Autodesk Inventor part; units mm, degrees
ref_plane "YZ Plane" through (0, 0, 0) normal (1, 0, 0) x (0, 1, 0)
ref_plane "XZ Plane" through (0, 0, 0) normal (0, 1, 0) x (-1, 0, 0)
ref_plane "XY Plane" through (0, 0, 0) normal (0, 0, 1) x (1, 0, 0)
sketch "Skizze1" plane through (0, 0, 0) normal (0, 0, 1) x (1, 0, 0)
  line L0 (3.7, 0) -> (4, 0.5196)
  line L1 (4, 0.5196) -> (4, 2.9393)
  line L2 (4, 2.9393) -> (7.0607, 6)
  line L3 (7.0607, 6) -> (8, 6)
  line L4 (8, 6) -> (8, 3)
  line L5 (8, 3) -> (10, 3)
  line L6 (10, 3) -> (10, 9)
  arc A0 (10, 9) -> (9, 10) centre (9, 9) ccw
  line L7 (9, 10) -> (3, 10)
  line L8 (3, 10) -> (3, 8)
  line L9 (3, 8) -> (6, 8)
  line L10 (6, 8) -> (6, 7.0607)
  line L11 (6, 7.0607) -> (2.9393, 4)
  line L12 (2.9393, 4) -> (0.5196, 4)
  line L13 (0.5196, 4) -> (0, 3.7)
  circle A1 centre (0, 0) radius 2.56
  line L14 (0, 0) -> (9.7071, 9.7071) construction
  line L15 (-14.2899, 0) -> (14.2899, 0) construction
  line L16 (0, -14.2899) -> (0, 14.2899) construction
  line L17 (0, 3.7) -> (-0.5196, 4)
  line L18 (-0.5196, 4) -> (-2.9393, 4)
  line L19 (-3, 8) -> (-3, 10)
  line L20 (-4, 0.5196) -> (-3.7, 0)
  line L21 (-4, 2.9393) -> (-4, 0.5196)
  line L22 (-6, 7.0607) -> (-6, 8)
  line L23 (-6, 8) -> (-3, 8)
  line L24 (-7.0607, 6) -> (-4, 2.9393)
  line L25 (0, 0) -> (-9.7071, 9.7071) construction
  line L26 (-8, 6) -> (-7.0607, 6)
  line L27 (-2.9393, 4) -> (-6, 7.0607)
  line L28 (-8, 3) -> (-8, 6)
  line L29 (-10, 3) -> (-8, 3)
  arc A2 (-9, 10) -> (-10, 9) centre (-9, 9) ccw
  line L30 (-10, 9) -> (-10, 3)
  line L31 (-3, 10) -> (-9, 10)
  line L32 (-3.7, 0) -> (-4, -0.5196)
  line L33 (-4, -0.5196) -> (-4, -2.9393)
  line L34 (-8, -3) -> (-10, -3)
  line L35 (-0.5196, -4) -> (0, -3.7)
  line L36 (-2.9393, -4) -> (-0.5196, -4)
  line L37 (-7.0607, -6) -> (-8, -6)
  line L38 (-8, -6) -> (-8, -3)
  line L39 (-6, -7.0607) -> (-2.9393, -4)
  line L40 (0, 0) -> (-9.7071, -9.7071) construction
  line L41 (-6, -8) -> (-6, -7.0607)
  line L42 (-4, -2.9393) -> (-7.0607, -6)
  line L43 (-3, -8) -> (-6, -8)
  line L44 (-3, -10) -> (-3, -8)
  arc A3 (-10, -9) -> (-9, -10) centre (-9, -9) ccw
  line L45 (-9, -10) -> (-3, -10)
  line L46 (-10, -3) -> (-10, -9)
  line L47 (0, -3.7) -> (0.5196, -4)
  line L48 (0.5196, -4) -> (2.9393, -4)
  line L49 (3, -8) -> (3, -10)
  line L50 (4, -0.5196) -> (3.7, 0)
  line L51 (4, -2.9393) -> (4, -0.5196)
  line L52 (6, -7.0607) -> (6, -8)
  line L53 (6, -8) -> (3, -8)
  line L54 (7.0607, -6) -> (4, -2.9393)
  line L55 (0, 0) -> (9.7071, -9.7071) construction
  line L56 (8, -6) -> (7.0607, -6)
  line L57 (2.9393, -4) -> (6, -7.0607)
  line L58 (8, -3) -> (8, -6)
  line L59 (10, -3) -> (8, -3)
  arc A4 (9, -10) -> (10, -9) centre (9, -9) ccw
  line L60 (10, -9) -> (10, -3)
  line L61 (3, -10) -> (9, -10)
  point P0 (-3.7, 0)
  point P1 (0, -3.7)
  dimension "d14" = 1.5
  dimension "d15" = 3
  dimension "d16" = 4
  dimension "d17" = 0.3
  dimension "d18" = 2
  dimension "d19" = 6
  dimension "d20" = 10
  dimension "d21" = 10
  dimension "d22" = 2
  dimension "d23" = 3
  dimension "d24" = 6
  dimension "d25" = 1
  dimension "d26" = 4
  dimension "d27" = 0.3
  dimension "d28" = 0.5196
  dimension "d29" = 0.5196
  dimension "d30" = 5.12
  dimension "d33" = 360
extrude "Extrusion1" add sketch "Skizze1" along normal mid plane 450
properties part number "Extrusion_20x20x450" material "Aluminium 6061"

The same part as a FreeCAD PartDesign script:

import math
import FreeCAD as App
import Part
import Sketcher
from FreeCAD import Vector
Q = App.Units.Quantity

doc = App.newDocument("Part")
body = doc.addObject("PartDesign::Body", "Body")

# Sketch on XY plane
sketch1 = body.newObject("Sketcher::SketchObject", "Sketch")
sketch1.AttachmentSupport = (doc.getObject("XY_Plane"), [""])
sketch1.MapMode = "FlatFace"
sketch1.addGeometry([
    Part.LineSegment(Vector(4, -0.5, 0), Vector(3.7, 0, 0)),  # 0
    Part.LineSegment(Vector(3.7, 0, 0), Vector(4, 0.5, 0)),  # 1
    Part.LineSegment(Vector(4, 0.5, 0), Vector(4, 2.9, 0)),  # 2
    Part.LineSegment(Vector(4, 2.9, 0), Vector(7.1, 6, 0)),  # 3
    Part.LineSegment(Vector(7.1, 6, 0), Vector(8, 6, 0)),  # 4
    Part.LineSegment(Vector(8, 6, 0), Vector(8, 3, 0)),  # 5
    Part.LineSegment(Vector(8, 3, 0), Vector(10, 3, 0)),  # 6
    Part.LineSegment(Vector(10, 3, 0), Vector(10, 9, 0)),  # 7
    Part.ArcOfCircle(Part.Circle(Vector(9, 9, 0), Vector(0, 0, 1), 1), math.radians(0), math.radians(90)),  # 8
    Part.LineSegment(Vector(9, 10, 0), Vector(3, 10, 0)),  # 9
    Part.LineSegment(Vector(3, 10, 0), Vector(3, 8, 0)),  # 10
    Part.LineSegment(Vector(3, 8, 0), Vector(6, 8, 0)),  # 11
    Part.LineSegment(Vector(6, 8, 0), Vector(6, 7.1, 0)),  # 12
    Part.LineSegment(Vector(6, 7.1, 0), Vector(2.9, 4, 0)),  # 13
    Part.LineSegment(Vector(2.9, 4, 0), Vector(0.5, 4, 0)),  # 14
    Part.LineSegment(Vector(0.5, 4, 0), Vector(0, 3.7, 0)),  # 15
    Part.LineSegment(Vector(0, 3.7, 0), Vector(-0.5, 4, 0)),  # 16
    Part.LineSegment(Vector(-0.5, 4, 0), Vector(-2.9, 4, 0)),  # 17
    Part.LineSegment(Vector(-2.9, 4, 0), Vector(-6, 7.1, 0)),  # 18
    Part.LineSegment(Vector(-6, 7.1, 0), Vector(-6, 8, 0)),  # 19
    Part.LineSegment(Vector(-6, 8, 0), Vector(-3, 8, 0)),  # 20
    Part.LineSegment(Vector(-3, 8, 0), Vector(-3, 10, 0)),  # 21
    Part.LineSegment(Vector(-3, 10, 0), Vector(-9, 10, 0)),  # 22
    Part.ArcOfCircle(Part.Circle(Vector(-9, 9, 0), Vector(0, 0, 1), 1), math.radians(90), math.radians(180)),  # 23
    Part.LineSegment(Vector(-10, 9, 0), Vector(-10, 3, 0)),  # 24
    Part.LineSegment(Vector(-10, 3, 0), Vector(-8, 3, 0)),  # 25
    Part.LineSegment(Vector(-8, 3, 0), Vector(-8, 6, 0)),  # 26
    Part.LineSegment(Vector(-8, 6, 0), Vector(-7.1, 6, 0)),  # 27
    Part.LineSegment(Vector(-7.1, 6, 0), Vector(-4, 2.9, 0)),  # 28
    Part.LineSegment(Vector(-4, 2.9, 0), Vector(-4, 0.5, 0)),  # 29
    Part.LineSegment(Vector(-4, 0.5, 0), Vector(-3.7, 0, 0)),  # 30
    Part.LineSegment(Vector(-3.7, 0, 0), Vector(-4, -0.5, 0)),  # 31
    Part.LineSegment(Vector(-4, -0.5, 0), Vector(-4, -2.9, 0)),  # 32
    Part.LineSegment(Vector(-4, -2.9, 0), Vector(-7.1, -6, 0)),  # 33
    Part.LineSegment(Vector(-7.1, -6, 0), Vector(-8, -6, 0)),  # 34
    Part.LineSegment(Vector(-8, -6, 0), Vector(-8, -3, 0)),  # 35
    Part.LineSegment(Vector(-8, -3, 0), Vector(-10, -3, 0)),  # 36
    Part.LineSegment(Vector(-10, -3, 0), Vector(-10, -9, 0)),  # 37
    Part.ArcOfCircle(Part.Circle(Vector(-9, -9, 0), Vector(0, 0, 1), 1), math.radians(180), math.radians(270)),  # 38
    Part.LineSegment(Vector(-9, -10, 0), Vector(-3, -10, 0)),  # 39
    Part.LineSegment(Vector(-3, -10, 0), Vector(-3, -8, 0)),  # 40
    Part.LineSegment(Vector(-3, -8, 0), Vector(-6, -8, 0)),  # 41
    Part.LineSegment(Vector(-6, -8, 0), Vector(-6, -7.1, 0)),  # 42
    Part.LineSegment(Vector(-6, -7.1, 0), Vector(-2.9, -4, 0)),  # 43
    Part.LineSegment(Vector(-2.9, -4, 0), Vector(-0.5, -4, 0)),  # 44
    Part.LineSegment(Vector(-0.5, -4, 0), Vector(0, -3.7, 0)),  # 45
    Part.LineSegment(Vector(0, -3.7, 0), Vector(0.5, -4, 0)),  # 46
    Part.LineSegment(Vector(0.5, -4, 0), Vector(2.9, -4, 0)),  # 47
    Part.LineSegment(Vector(2.9, -4, 0), Vector(6, -7.1, 0)),  # 48
    Part.LineSegment(Vector(6, -7.1, 0), Vector(6, -8, 0)),  # 49
    Part.LineSegment(Vector(6, -8, 0), Vector(3, -8, 0)),  # 50
    Part.LineSegment(Vector(3, -8, 0), Vector(3, -10, 0)),  # 51
    Part.LineSegment(Vector(3, -10, 0), Vector(9, -10, 0)),  # 52
    Part.ArcOfCircle(Part.Circle(Vector(9, -9, 0), Vector(0, 0, 1), 1), math.radians(-90), math.radians(0)),  # 53
    Part.LineSegment(Vector(10, -9, 0), Vector(10, -3, 0)),  # 54
    Part.LineSegment(Vector(10, -3, 0), Vector(8, -3, 0)),  # 55
    Part.LineSegment(Vector(8, -3, 0), Vector(8, -6, 0)),  # 56
    Part.LineSegment(Vector(8, -6, 0), Vector(7.1, -6, 0)),  # 57
    Part.LineSegment(Vector(7.1, -6, 0), Vector(4, -2.9, 0)),  # 58
    Part.LineSegment(Vector(4, -2.9, 0), Vector(4, -0.5, 0)),  # 59
    Part.Circle(Vector(0, 0, 0), Vector(0, 0, 1), 2.6),  # 60
], False)
sketch1.addConstraint([
    Sketcher.Constraint("Coincident", 0, 2, 1, 1),
    Sketcher.Constraint("Coincident", 1, 2, 2, 1),
    Sketcher.Constraint("Coincident", 2, 2, 3, 1),
    Sketcher.Constraint("Coincident", 3, 2, 4, 1),
    Sketcher.Constraint("Coincident", 4, 2, 5, 1),
    Sketcher.Constraint("Coincident", 5, 2, 6, 1),
    Sketcher.Constraint("Coincident", 6, 2, 7, 1),
    Sketcher.Constraint("Tangent", 7, 2, 8, 1),
    Sketcher.Constraint("Tangent", 8, 2, 9, 1),
    Sketcher.Constraint("Coincident", 9, 2, 10, 1),
    Sketcher.Constraint("Coincident", 10, 2, 11, 1),
    Sketcher.Constraint("Coincident", 11, 2, 12, 1),
    Sketcher.Constraint("Coincident", 12, 2, 13, 1),
    Sketcher.Constraint("Coincident", 13, 2, 14, 1),
    Sketcher.Constraint("Coincident", 14, 2, 15, 1),
    Sketcher.Constraint("Coincident", 15, 2, 16, 1),
    Sketcher.Constraint("Coincident", 16, 2, 17, 1),
    Sketcher.Constraint("Coincident", 17, 2, 18, 1),
    Sketcher.Constraint("Coincident", 18, 2, 19, 1),
    Sketcher.Constraint("Coincident", 19, 2, 20, 1),
    Sketcher.Constraint("Coincident", 20, 2, 21, 1),
    Sketcher.Constraint("Coincident", 21, 2, 22, 1),
    Sketcher.Constraint("Tangent", 22, 2, 23, 1),
    Sketcher.Constraint("Tangent", 23, 2, 24, 1),
    Sketcher.Constraint("Coincident", 24, 2, 25, 1),
    Sketcher.Constraint("Coincident", 25, 2, 26, 1),
    Sketcher.Constraint("Coincident", 26, 2, 27, 1),
    Sketcher.Constraint("Coincident", 27, 2, 28, 1),
    Sketcher.Constraint("Coincident", 28, 2, 29, 1),
    Sketcher.Constraint("Coincident", 29, 2, 30, 1),
    Sketcher.Constraint("Coincident", 30, 2, 31, 1),
    Sketcher.Constraint("Coincident", 31, 2, 32, 1),
    Sketcher.Constraint("Coincident", 32, 2, 33, 1),
    Sketcher.Constraint("Coincident", 33, 2, 34, 1),
    Sketcher.Constraint("Coincident", 34, 2, 35, 1),
    Sketcher.Constraint("Coincident", 35, 2, 36, 1),
    Sketcher.Constraint("Coincident", 36, 2, 37, 1),
    Sketcher.Constraint("Tangent", 37, 2, 38, 1),
    Sketcher.Constraint("Tangent", 38, 2, 39, 1),
    Sketcher.Constraint("Coincident", 39, 2, 40, 1),
    Sketcher.Constraint("Coincident", 40, 2, 41, 1),
    Sketcher.Constraint("Coincident", 41, 2, 42, 1),
    Sketcher.Constraint("Coincident", 42, 2, 43, 1),
    Sketcher.Constraint("Coincident", 43, 2, 44, 1),
    Sketcher.Constraint("Coincident", 44, 2, 45, 1),
    Sketcher.Constraint("Coincident", 45, 2, 46, 1),
    Sketcher.Constraint("Coincident", 46, 2, 47, 1),
    Sketcher.Constraint("Coincident", 47, 2, 48, 1),
    Sketcher.Constraint("Coincident", 48, 2, 49, 1),
    Sketcher.Constraint("Coincident", 49, 2, 50, 1),
    Sketcher.Constraint("Coincident", 50, 2, 51, 1),
    Sketcher.Constraint("Coincident", 51, 2, 52, 1),
    Sketcher.Constraint("Tangent", 52, 2, 53, 1),
    Sketcher.Constraint("Tangent", 53, 2, 54, 1),
    Sketcher.Constraint("Coincident", 54, 2, 55, 1),
    Sketcher.Constraint("Coincident", 55, 2, 56, 1),
    Sketcher.Constraint("Coincident", 56, 2, 57, 1),
    Sketcher.Constraint("Coincident", 57, 2, 58, 1),
    Sketcher.Constraint("Coincident", 58, 2, 59, 1),
    Sketcher.Constraint("Coincident", 59, 2, 0, 1),
    Sketcher.Constraint("Vertical", 2),
    Sketcher.Constraint("Horizontal", 4),
    Sketcher.Constraint("Vertical", 5),
    Sketcher.Constraint("Horizontal", 6),
    Sketcher.Constraint("Vertical", 7),
    Sketcher.Constraint("Horizontal", 9),
    Sketcher.Constraint("Vertical", 10),
    Sketcher.Constraint("Horizontal", 11),
    Sketcher.Constraint("Vertical", 12),
    Sketcher.Constraint("Horizontal", 14),
    Sketcher.Constraint("Horizontal", 17),
    Sketcher.Constraint("Vertical", 19),
    Sketcher.Constraint("Horizontal", 20),
    Sketcher.Constraint("Vertical", 21),
    Sketcher.Constraint("Horizontal", 22),
    Sketcher.Constraint("Vertical", 24),
    Sketcher.Constraint("Horizontal", 25),
    Sketcher.Constraint("Vertical", 26),
    Sketcher.Constraint("Horizontal", 27),
    Sketcher.Constraint("Vertical", 29),
    Sketcher.Constraint("Vertical", 32),
    Sketcher.Constraint("Horizontal", 34),
    Sketcher.Constraint("Vertical", 35),
    Sketcher.Constraint("Horizontal", 36),
    Sketcher.Constraint("Vertical", 37),
    Sketcher.Constraint("Horizontal", 39),
    Sketcher.Constraint("Vertical", 40),
    Sketcher.Constraint("Horizontal", 41),
    Sketcher.Constraint("Vertical", 42),
    Sketcher.Constraint("Horizontal", 44),
    Sketcher.Constraint("Horizontal", 47),
    Sketcher.Constraint("Vertical", 49),
    Sketcher.Constraint("Horizontal", 50),
    Sketcher.Constraint("Vertical", 51),
    Sketcher.Constraint("Horizontal", 52),
    Sketcher.Constraint("Vertical", 54),
    Sketcher.Constraint("Horizontal", 55),
    Sketcher.Constraint("Vertical", 56),
    Sketcher.Constraint("Horizontal", 57),
    Sketcher.Constraint("Vertical", 59),
    Sketcher.Constraint("Coincident", 60, 3, -1, 1),
    Sketcher.Constraint("Equal", 8, 23),
    Sketcher.Constraint("Equal", 23, 38),
    Sketcher.Constraint("Equal", 38, 53),
    Sketcher.Constraint("Symmetric", 8, 3, 38, 3, -1, 1),
    Sketcher.Constraint("Symmetric", 23, 3, 53, 3, -1, 1),
    Sketcher.Constraint("Symmetric", 0, 2, 30, 2, -1, 1),
    Sketcher.Constraint("Symmetric", 1, 2, 31, 2, -1, 1),
    Sketcher.Constraint("Symmetric", 3, 2, 33, 2, -1, 1),
    Sketcher.Constraint("Symmetric", 5, 2, 35, 2, -1, 1),
    Sketcher.Constraint("Symmetric", 10, 2, 40, 2, -1, 1),
    Sketcher.Constraint("Symmetric", 12, 2, 42, 2, -1, 1),
    Sketcher.Constraint("Symmetric", 13, 2, 43, 2, -1, 1),
    Sketcher.Constraint("Symmetric", 15, 2, 45, 2, -1, 1),
    Sketcher.Constraint("Symmetric", 16, 2, 46, 2, -1, 1),
    Sketcher.Constraint("Symmetric", 18, 2, 48, 2, -1, 1),
    Sketcher.Constraint("Symmetric", 20, 2, 50, 2, -1, 1),
    Sketcher.Constraint("Symmetric", 25, 2, 55, 2, -1, 1),
    Sketcher.Constraint("Symmetric", 27, 2, 57, 2, -1, 1),
    Sketcher.Constraint("Symmetric", 28, 2, 58, 2, -1, 1),
    Sketcher.Constraint("Symmetric", 8, 3, 23, 3, -2),
    Sketcher.Constraint("Symmetric", 14, 2, 16, 2, -2),
    Sketcher.Constraint("Symmetric", 12, 2, 18, 2, -2),
    Sketcher.Constraint("Symmetric", 10, 2, 20, 2, -2),
    Sketcher.Constraint("Symmetric", 5, 2, 25, 2, -2),
    Sketcher.Constraint("Symmetric", 3, 2, 27, 2, -2),
    Sketcher.Constraint("Symmetric", 2, 2, 28, 2, -2),
    Sketcher.Constraint("PointOnObject", 0, 2, -1),
    Sketcher.Constraint("PointOnObject", 15, 2, -2),
    Sketcher.Constraint("Parallel", 3, 13),
    Sketcher.Constraint("Perpendicular", 0, 15),
    Sketcher.Constraint("Perpendicular", 1, 16),
    Sketcher.Constraint("Perpendicular", 13, 18),
    Sketcher.Constraint("Parallel", 18, 28),
    Sketcher.Constraint("Perpendicular", 15, 30),
    Sketcher.Constraint("Perpendicular", 28, 33),
    Sketcher.Constraint("Perpendicular", 30, 45),
    Sketcher.Constraint("Perpendicular", 43, 48),
    Sketcher.Constraint("Equal", 47, 2),
    Sketcher.Constraint("Equal", 50, 5),
    Sketcher.Constraint("Equal", 52, 7),
    Sketcher.Constraint("Equal", 55, 10),
    Sketcher.Constraint("Equal", 57, 12),
    Sketcher.Constraint("Equal", 3, 13),
    Sketcher.Constraint("Equal", 1, 15),
    Sketcher.Constraint("Radius", 8, 1.0),
    Sketcher.Constraint("Diameter", 60, 5.12),
    Sketcher.Constraint("DistanceX", 6, 1, 6, 2, 2.0),
    Sketcher.Constraint("DistanceX", 9, 2, 9, 1, 6.0),
    Sketcher.Constraint("DistanceX", 11, 1, 11, 2, 3.0),
    Sketcher.Constraint("DistanceX", -1, 1, 1, 2, 4.0),
    Sketcher.Constraint("DistanceY", -1, 1, 3, 2, 6.0),
    Sketcher.Constraint("Angle", 0, Q("120.0007 deg")),
    Sketcher.Constraint("Distance", 0, 0.6),
    Sketcher.Constraint("DistanceX", 4, 1, 4, 2, 0.9393),
])
pad1 = body.newObject("PartDesign::Pad", "Pad")
pad1.Profile = sketch1
pad1.Length = 450
pad1.Midplane = True

doc.recompute()
